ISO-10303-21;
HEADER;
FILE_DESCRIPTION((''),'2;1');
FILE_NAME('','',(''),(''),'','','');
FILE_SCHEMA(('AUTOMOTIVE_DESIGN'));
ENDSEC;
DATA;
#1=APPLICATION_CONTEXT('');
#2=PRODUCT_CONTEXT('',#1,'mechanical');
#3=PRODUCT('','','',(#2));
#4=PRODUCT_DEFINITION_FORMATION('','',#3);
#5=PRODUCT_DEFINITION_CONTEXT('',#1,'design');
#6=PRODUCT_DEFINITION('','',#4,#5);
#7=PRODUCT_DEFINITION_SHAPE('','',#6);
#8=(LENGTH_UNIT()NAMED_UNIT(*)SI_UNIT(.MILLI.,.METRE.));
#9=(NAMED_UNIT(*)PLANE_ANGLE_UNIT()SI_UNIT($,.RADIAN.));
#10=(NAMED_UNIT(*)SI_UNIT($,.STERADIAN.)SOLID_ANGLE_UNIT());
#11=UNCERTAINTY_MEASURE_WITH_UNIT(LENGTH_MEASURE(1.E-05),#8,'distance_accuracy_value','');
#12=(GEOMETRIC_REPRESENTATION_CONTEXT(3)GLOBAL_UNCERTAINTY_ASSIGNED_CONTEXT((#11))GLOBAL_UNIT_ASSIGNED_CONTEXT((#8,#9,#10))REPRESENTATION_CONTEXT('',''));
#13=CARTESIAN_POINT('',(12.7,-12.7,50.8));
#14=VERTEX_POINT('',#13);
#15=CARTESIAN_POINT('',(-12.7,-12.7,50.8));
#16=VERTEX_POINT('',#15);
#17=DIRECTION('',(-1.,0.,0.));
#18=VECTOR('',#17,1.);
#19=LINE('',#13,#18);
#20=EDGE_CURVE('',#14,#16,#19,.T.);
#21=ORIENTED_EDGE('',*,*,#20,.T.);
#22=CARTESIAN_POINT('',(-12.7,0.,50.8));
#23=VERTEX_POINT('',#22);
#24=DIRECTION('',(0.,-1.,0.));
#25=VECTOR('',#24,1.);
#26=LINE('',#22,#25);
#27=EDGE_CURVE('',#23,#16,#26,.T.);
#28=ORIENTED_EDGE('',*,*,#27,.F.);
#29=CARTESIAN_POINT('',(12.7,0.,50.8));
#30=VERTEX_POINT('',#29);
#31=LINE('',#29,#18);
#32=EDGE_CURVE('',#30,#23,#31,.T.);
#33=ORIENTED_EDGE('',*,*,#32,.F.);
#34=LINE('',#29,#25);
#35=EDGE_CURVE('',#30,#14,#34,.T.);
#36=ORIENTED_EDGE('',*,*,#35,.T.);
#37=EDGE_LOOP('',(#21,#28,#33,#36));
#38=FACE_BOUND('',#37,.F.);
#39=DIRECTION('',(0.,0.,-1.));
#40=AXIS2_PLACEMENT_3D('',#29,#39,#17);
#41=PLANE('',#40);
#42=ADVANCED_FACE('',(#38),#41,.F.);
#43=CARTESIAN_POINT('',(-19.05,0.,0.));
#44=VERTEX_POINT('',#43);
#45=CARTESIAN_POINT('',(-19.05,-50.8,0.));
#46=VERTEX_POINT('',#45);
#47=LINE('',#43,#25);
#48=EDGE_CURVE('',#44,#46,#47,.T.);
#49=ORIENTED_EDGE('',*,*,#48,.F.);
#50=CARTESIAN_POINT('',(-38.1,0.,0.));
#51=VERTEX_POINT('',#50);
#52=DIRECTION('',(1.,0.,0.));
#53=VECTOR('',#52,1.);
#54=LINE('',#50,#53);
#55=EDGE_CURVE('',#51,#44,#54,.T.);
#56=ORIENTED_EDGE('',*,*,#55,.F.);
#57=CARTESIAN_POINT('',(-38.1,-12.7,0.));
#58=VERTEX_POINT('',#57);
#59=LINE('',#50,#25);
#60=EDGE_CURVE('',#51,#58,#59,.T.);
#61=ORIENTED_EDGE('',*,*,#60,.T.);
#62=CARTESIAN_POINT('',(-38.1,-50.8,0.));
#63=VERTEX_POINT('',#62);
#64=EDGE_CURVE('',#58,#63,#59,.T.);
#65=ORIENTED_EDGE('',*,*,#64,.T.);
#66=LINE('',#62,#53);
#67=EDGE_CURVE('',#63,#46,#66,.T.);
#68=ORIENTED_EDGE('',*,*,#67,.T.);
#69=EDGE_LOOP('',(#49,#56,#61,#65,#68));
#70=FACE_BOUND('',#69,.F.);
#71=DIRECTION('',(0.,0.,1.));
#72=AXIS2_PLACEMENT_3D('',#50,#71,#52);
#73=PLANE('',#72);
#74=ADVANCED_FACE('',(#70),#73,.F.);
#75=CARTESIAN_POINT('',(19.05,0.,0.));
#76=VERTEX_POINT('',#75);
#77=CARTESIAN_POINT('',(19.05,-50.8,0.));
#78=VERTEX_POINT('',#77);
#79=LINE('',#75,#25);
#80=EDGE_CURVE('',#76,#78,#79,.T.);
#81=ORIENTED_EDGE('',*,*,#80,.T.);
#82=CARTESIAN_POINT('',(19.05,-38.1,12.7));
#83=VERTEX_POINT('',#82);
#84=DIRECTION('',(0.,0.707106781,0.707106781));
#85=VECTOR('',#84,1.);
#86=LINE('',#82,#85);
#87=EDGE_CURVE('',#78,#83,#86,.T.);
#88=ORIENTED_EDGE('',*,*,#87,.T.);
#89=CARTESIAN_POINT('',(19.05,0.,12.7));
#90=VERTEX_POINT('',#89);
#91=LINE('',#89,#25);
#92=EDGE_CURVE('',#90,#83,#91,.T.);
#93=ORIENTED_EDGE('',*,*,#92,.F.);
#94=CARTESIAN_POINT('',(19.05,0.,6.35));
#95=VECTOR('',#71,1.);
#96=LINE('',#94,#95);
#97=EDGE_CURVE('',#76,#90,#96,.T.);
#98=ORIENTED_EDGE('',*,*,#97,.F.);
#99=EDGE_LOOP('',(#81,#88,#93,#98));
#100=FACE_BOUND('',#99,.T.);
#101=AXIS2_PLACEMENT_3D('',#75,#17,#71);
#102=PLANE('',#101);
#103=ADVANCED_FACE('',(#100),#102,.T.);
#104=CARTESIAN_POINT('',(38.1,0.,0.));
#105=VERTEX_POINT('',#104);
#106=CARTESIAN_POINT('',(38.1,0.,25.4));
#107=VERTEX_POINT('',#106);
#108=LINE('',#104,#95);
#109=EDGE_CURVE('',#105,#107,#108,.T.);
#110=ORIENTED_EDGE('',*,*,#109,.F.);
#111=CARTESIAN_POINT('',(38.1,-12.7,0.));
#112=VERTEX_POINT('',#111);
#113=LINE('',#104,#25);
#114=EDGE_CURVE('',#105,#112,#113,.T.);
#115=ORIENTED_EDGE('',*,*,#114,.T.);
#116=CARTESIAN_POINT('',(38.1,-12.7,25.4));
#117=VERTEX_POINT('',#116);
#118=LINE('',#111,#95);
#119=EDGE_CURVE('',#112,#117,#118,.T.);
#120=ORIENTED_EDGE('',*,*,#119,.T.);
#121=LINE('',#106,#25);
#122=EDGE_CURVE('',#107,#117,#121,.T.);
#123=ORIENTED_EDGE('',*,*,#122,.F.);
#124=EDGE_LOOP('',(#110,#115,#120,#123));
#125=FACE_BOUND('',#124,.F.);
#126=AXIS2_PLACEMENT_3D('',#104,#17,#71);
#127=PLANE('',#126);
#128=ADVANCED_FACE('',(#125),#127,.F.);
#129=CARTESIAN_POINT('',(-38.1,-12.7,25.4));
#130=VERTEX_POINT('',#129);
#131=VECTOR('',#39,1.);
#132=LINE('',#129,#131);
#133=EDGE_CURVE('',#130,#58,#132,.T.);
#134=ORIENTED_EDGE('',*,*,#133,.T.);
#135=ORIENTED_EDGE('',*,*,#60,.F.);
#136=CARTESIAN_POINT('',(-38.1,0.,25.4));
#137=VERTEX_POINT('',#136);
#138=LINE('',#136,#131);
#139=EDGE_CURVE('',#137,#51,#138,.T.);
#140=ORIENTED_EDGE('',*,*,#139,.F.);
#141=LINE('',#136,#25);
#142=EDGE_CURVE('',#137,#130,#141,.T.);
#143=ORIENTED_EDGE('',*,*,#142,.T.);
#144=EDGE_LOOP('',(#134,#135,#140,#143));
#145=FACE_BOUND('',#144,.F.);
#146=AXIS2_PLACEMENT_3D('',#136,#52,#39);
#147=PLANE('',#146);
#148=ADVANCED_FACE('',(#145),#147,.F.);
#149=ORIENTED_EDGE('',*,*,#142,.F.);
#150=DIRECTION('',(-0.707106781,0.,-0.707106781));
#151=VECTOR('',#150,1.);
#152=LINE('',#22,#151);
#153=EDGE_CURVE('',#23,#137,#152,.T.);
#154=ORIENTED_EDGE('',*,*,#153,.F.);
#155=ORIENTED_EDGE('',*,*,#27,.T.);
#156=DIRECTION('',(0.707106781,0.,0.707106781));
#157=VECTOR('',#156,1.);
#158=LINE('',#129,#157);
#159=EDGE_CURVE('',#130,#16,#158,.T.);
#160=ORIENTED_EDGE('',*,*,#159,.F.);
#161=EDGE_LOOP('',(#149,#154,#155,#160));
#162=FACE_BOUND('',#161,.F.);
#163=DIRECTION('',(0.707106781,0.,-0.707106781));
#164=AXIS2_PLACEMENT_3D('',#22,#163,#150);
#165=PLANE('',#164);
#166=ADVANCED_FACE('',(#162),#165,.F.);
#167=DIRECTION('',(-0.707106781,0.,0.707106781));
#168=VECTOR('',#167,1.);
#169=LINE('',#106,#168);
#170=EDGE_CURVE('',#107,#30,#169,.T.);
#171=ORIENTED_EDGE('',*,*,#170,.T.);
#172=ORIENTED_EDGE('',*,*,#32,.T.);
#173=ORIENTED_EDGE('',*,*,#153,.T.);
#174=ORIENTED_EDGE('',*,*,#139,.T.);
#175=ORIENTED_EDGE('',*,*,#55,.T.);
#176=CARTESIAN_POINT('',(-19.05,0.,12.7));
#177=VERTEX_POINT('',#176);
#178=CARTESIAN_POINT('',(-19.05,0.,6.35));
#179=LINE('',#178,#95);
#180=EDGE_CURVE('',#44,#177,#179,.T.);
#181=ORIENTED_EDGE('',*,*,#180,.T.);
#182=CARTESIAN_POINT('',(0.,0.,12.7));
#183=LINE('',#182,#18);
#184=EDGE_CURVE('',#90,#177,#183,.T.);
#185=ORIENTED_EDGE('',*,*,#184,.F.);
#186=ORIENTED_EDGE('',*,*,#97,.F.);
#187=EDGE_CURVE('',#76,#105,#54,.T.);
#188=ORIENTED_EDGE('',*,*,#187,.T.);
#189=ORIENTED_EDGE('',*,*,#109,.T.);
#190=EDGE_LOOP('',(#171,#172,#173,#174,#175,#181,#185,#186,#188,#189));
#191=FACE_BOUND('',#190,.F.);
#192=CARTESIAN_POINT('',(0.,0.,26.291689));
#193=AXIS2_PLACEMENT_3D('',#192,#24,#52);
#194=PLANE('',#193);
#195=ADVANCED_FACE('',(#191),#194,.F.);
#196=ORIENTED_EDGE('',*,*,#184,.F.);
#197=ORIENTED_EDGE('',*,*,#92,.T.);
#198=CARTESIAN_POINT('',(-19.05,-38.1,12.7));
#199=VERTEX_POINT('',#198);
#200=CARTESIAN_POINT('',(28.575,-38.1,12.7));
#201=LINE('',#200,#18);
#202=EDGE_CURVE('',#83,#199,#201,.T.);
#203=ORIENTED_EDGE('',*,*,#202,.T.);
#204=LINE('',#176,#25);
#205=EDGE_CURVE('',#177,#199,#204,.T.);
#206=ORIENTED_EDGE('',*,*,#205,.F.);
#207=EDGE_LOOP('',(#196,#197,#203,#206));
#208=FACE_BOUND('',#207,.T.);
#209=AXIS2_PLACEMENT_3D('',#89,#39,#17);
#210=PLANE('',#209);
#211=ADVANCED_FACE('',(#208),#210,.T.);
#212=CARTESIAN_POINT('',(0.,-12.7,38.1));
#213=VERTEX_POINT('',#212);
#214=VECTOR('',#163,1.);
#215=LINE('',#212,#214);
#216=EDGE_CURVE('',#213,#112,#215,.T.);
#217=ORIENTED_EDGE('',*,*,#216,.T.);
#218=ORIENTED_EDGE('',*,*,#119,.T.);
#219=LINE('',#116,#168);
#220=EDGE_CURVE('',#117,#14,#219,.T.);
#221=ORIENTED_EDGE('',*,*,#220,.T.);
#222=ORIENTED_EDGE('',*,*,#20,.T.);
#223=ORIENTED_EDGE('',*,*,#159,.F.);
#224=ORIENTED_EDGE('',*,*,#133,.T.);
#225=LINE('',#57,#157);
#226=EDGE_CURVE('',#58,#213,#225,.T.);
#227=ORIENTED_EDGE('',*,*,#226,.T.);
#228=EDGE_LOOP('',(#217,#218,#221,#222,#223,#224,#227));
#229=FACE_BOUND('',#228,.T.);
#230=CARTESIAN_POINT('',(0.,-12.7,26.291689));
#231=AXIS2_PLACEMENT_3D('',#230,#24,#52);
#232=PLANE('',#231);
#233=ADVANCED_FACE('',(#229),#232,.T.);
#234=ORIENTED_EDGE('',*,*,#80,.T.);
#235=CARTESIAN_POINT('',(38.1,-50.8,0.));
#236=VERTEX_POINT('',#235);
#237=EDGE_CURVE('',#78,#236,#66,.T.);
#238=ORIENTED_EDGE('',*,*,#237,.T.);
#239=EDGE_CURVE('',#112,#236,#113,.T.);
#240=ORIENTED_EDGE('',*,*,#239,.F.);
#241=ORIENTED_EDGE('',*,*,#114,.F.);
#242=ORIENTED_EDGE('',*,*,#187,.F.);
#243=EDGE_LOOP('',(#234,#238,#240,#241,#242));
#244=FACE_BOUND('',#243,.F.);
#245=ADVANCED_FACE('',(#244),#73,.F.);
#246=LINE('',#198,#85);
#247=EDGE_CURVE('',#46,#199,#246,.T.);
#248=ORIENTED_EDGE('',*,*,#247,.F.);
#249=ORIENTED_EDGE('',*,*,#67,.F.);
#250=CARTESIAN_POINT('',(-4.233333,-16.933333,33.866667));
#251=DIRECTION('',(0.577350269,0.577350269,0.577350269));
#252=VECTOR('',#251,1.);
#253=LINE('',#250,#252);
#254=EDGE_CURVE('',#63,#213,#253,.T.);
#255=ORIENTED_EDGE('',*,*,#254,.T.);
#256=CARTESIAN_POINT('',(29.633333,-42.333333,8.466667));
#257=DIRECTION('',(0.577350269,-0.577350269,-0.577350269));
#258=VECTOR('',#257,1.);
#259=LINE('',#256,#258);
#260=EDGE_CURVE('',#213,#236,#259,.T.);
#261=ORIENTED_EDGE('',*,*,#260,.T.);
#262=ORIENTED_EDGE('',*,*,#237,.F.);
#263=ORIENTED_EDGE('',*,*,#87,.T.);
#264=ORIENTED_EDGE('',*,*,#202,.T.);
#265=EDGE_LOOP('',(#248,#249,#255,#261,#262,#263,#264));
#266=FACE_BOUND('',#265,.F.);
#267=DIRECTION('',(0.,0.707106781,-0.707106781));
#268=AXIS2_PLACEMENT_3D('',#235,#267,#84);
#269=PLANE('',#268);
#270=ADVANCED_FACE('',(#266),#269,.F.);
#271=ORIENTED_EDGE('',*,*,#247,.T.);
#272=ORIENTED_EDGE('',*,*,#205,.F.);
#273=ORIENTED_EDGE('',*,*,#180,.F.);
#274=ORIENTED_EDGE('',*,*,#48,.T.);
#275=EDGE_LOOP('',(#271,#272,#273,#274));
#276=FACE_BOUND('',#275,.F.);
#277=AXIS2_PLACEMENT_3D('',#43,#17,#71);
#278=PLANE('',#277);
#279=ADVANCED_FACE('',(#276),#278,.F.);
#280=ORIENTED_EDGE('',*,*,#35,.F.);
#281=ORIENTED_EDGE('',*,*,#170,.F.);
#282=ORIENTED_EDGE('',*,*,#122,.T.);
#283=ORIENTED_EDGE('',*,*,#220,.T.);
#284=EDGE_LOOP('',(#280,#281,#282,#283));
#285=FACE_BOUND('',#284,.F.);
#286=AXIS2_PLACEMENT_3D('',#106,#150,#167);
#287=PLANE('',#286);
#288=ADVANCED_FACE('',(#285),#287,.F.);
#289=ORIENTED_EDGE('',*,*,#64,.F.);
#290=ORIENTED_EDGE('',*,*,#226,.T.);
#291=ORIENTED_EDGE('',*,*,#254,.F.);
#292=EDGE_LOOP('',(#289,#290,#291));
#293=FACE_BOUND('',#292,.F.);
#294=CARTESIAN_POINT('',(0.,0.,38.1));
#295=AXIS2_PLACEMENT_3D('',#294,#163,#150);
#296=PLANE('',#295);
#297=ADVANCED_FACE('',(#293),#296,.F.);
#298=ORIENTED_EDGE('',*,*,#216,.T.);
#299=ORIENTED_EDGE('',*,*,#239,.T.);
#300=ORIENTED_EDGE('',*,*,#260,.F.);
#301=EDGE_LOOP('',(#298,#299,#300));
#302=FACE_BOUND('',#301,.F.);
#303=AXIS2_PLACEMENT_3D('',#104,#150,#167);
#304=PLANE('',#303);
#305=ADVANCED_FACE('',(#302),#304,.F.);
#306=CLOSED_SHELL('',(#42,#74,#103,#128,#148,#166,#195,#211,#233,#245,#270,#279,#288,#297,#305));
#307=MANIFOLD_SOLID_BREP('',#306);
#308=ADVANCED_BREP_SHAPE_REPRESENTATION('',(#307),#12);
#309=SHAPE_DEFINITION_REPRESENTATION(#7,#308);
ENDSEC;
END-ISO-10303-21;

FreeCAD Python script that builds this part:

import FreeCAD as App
import Part
import Sketcher
Q = App.Units.Quantity


def add_polygon(sketch, points):
    """Adds a closed chain of lines whose ends are joined by coincident constraints."""
    first, n = sketch.GeometryCount, len(points)
    for a, b in zip(points, points[1:] + points[:1]):
        sketch.addGeometry(Part.LineSegment(App.Vector(*a, 0), App.Vector(*b, 0)), False)
    for i in range(n):
        sketch.addConstraint(Sketcher.Constraint("Coincident", first + i, 2, first + (i + 1) % n, 1))

doc = App.newDocument("Part")
body = doc.addObject("PartDesign::Body", "Body")

# Sketch on XZ plane
sketch1 = doc.addObject("Sketcher::SketchObject", "Sketch")
body.addObject(sketch1)
sketch1.AttachmentSupport = (doc.XZ_Plane, [""])
sketch1.MapMode = "FlatFace"
add_polygon(sketch1, [(-38.1, 0), (38.1, 0), (0, 38.1)])  # lines 0-2
sketch1.addConstraint(Sketcher.Constraint("Horizontal", 0))
sketch1.addConstraint(Sketcher.Constraint("Symmetric", 0, 2, 2, 2, -1, 1))
sketch1.addConstraint(Sketcher.Constraint("PointOnObject", 1, 2, -2))
sketch1.addConstraint(Sketcher.Constraint("Perpendicular", 1, 2))
sketch1.addConstraint(Sketcher.Constraint("DistanceX", 0, 1, 0, 2, Q("3 in")))
pad1 = doc.addObject("PartDesign::Pad", "Pad")
body.addObject(pad1)
pad1.Profile = sketch1
pad1.Length = Q("2 in")

# Sketch on XZ plane
sketch2 = doc.addObject("Sketcher::SketchObject", "Sketch001")
body.addObject(sketch2)
sketch2.AttachmentSupport = (doc.XZ_Plane, [""])
sketch2.MapMode = "FlatFace"
add_polygon(sketch2, [(-38.1, 25.4), (-38.1, 0), (0, 38.1), (38.1, 0), (38.1, 25.4), (12.7, 50.8), (-12.7, 50.8)])  # lines 0-6
sketch2.addConstraint(Sketcher.Constraint("Vertical", 0))
sketch2.addConstraint(Sketcher.Constraint("Vertical", 3))
sketch2.addConstraint(Sketcher.Constraint("Horizontal", 5))
sketch2.addConstraint(Sketcher.Constraint("Symmetric", 0, 2, 2, 2, -1, 1))
sketch2.addConstraint(Sketcher.Constraint("PointOnObject", 0, 2, -1))
sketch2.addConstraint(Sketcher.Constraint("PointOnObject", 1, 2, -2))
sketch2.addConstraint(Sketcher.Constraint("Perpendicular", 1, 2))
sketch2.addConstraint(Sketcher.Constraint("Parallel", 2, 4))
sketch2.addConstraint(Sketcher.Constraint("Perpendicular", 4, 6))
sketch2.addConstraint(Sketcher.Constraint("Horizontal", 3, 2, 6, 2))
sketch2.addConstraint(Sketcher.Constraint("Equal", 5, 0))
sketch2.addConstraint(Sketcher.Constraint("DistanceX", 5, 2, 5, 1, Q("1 in")))
sketch2.addConstraint(Sketcher.Constraint("DistanceY", -1, 1, 4, 2, Q("2 in")))
pad2 = doc.addObject("PartDesign::Pad", "Pad001")
body.addObject(pad2)
pad2.Profile = sketch2
pad2.Length = Q("0.5 in")

# Sketch on YZ plane
sketch3 = doc.addObject("Sketcher::SketchObject", "Sketch002")
body.addObject(sketch3)
sketch3.AttachmentSupport = (doc.YZ_Plane, [""])
sketch3.MapMode = "FlatFace"
sketch3.AttachmentOffset = App.Placement(App.Vector(0, 0, 1.5 * 25.4), App.Rotation())
add_polygon(sketch3, [(-12.7, 38.1), (-50.8, 38.1), (-50.8, 0)])  # lines 0-2
sketch3.addConstraint(Sketcher.Constraint("Horizontal", 0))
sketch3.addConstraint(Sketcher.Constraint("Vertical", 1))
sketch3.addConstraint(Sketcher.Constraint("PointOnObject", 1, 2, -1))
sketch3.addConstraint(Sketcher.Constraint("Equal", 0, 1))
sketch3.addConstraint(Sketcher.Constraint("DistanceX", 0, 2, 0, 1, Q("1.5 in")))
sketch3.addConstraint(Sketcher.Constraint("DistanceX", 0, 2, -1, 1, Q("2 in")))
pocket1 = doc.addObject("PartDesign::Pocket", "Pocket")
body.addObject(pocket1)
pocket1.Profile = sketch3
pocket1.Type = "ThroughAll"

# Sketch on XZ plane
sketch4 = doc.addObject("Sketcher::SketchObject", "Sketch003")
body.addObject(sketch4)
sketch4.AttachmentSupport = (doc.XZ_Plane, [""])
sketch4.MapMode = "FlatFace"
add_polygon(sketch4, [(19.05, 12.7), (19.05, 0), (-19.05, 0), (-19.05, 12.7)])  # lines 0-3
sketch4.addConstraint(Sketcher.Constraint("Vertical", 0))
sketch4.addConstraint(Sketcher.Constraint("Horizontal", 1))
sketch4.addConstraint(Sketcher.Constraint("Vertical", 2))
sketch4.addConstraint(Sketcher.Constraint("Horizontal", 3))
sketch4.addConstraint(Sketcher.Constraint("Symmetric", 0, 2, 1, 2, -1, 1))
sketch4.addConstraint(Sketcher.Constraint("DistanceX", 1, 2, 1, 1, Q("1.5 in")))
sketch4.addConstraint(Sketcher.Constraint("DistanceY", 0, 2, 0, 1, Q("0.5 in")))
pocket2 = doc.addObject("PartDesign::Pocket", "Pocket001")
body.addObject(pocket2)
pocket2.Profile = sketch4
pocket2.Type = "ThroughAll"
pocket2.Reversed = True

doc.recompute()
